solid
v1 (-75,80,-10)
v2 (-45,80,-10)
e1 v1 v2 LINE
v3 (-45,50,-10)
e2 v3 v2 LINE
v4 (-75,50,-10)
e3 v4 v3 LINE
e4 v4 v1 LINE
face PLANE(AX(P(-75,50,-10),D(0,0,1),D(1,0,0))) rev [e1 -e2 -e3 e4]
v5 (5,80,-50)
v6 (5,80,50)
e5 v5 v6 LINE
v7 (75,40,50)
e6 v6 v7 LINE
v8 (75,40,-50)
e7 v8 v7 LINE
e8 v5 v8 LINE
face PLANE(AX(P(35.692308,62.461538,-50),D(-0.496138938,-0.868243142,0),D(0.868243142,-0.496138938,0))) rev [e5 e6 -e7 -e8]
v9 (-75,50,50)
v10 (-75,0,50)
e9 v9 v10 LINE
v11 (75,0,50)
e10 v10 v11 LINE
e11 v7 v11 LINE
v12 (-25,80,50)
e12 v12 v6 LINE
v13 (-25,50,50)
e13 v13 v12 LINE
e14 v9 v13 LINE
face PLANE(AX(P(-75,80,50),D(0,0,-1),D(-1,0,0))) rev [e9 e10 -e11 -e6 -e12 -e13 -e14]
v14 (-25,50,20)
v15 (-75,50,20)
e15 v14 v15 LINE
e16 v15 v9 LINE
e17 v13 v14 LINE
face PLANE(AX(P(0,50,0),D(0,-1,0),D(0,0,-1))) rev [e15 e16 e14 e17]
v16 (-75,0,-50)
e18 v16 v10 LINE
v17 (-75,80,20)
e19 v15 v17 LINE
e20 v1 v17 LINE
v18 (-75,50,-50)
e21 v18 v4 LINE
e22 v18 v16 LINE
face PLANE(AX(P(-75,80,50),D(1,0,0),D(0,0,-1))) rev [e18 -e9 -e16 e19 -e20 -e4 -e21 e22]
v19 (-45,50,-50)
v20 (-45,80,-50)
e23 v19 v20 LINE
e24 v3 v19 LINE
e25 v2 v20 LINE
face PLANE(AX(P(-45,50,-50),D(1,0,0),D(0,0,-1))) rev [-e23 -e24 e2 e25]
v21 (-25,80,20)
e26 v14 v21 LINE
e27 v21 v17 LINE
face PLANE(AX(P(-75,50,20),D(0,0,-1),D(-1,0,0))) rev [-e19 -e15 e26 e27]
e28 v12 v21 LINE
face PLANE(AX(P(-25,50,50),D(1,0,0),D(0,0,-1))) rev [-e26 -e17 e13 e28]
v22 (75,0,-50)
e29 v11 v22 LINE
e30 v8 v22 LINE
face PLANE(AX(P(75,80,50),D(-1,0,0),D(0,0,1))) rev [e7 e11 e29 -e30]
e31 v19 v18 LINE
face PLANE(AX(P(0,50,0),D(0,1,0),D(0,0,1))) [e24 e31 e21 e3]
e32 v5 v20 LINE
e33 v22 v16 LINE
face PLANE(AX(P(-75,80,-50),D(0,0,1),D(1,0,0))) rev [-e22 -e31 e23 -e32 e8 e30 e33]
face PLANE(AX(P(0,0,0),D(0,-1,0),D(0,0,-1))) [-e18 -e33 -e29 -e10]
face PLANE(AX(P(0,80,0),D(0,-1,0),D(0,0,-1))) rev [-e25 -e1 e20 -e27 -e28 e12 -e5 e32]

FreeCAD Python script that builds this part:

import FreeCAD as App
import Part
import Sketcher
Q = App.Units.Quantity

doc = App.newDocument("Part")
body = doc.addObject("PartDesign::Body", "Body")

sketch1 = doc.addObject("Sketcher::SketchObject", "Sketch")
body.addObject(sketch1)
sketch1.AttachmentSupport = (doc.XZ_Plane, [""])
sketch1.MapMode = "FlatFace"
sketch1.addGeometry([
    Part.LineSegment(App.Vector(-75, -50, 0), App.Vector(-75, 50, 0)),
    Part.LineSegment(App.Vector(-75, 50, 0), App.Vector(75, 50, 0)),
    Part.LineSegment(App.Vector(75, 50, 0), App.Vector(75, -50, 0)),
    Part.LineSegment(App.Vector(75, -50, 0), App.Vector(-75, -50, 0)),
], False)
sketch1.addConstraint([
    Sketcher.Constraint("Coincident", 0, 2, 1, 1),
    Sketcher.Constraint("Coincident", 1, 2, 2, 1),
    Sketcher.Constraint("Coincident", 2, 2, 3, 1),
    Sketcher.Constraint("Coincident", 3, 2, 0, 1),
    Sketcher.Constraint("Vertical", 0),
    Sketcher.Constraint("Horizontal", 1),
    Sketcher.Constraint("Vertical", 2),
    Sketcher.Constraint("Horizontal", 3),
    Sketcher.Constraint("Symmetric", 0, 2, 2, 2, -1, 1),
    Sketcher.Constraint("DistanceX", 1, 1, 1, 2, Q("150 mm")),
    Sketcher.Constraint("DistanceY", 0, 1, 0, 2, Q("100 mm")),
])
pad1 = doc.addObject("PartDesign::Pad", "Pad")
body.addObject(pad1)
pad1.Profile = sketch1
pad1.Length = 80
pad1.Reversed = True

sketch2 = doc.addObject("Sketcher::SketchObject", "Sketch001")
body.addObject(sketch2)
sketch2.AttachmentSupport = (doc.XY_Plane, [""])
sketch2.MapMode = "FlatFace"
sketch2.AttachmentOffset = App.Placement(App.Vector(0, 0, 50), App.Rotation())
sketch2.addGeometry([
    Part.LineSegment(App.Vector(75, 80, 0), App.Vector(5, 80, 0)),
    Part.LineSegment(App.Vector(5, 80, 0), App.Vector(75, 40, 0)),
    Part.LineSegment(App.Vector(75, 40, 0), App.Vector(75, 80, 0)),
], False)
sketch2.addConstraint([
    Sketcher.Constraint("Coincident", 0, 2, 1, 1),
    Sketcher.Constraint("Coincident", 1, 2, 2, 1),
    Sketcher.Constraint("Coincident", 2, 2, 0, 1),
    Sketcher.Constraint("Horizontal", 0),
    Sketcher.Constraint("Vertical", 2),
    Sketcher.Constraint("DistanceX", 0, 2, 0, 1, Q("70 mm")),
    Sketcher.Constraint("DistanceY", 2, 1, 2, 2, Q("40 mm")),
    Sketcher.Constraint("DistanceX", -1, 1, 0, 2, Q("5 mm")),
    Sketcher.Constraint("DistanceY", -1, 1, 0, 2, Q("80 mm")),
])
pocket1 = doc.addObject("PartDesign::Pocket", "Pocket")
body.addObject(pocket1)
pocket1.Profile = sketch2
pocket1.Type = "ThroughAll"

sketch3 = doc.addObject("Sketcher::SketchObject", "Sketch002")
body.addObject(sketch3)
sketch3.AttachmentSupport = (doc.XZ_Plane, [""])
sketch3.MapMode = "FlatFace"
sketch3.AttachmentOffset = App.Placement(App.Vector(0, 0, -80), App.Rotation())
sketch3.addGeometry([
    Part.LineSegment(App.Vector(-75, 20, 0), App.Vector(-75, 50, 0)),
    Part.LineSegment(App.Vector(-75, 50, 0), App.Vector(-25, 50, 0)),
    Part.LineSegment(App.Vector(-25, 50, 0), App.Vector(-25, 20, 0)),
    Part.LineSegment(App.Vector(-25, 20, 0), App.Vector(-75, 20, 0)),
    Part.LineSegment(App.Vector(-75, -50, 0), App.Vector(-75, -10, 0)),
    Part.LineSegment(App.Vector(-75, -10, 0), App.Vector(-45, -10, 0)),
    Part.LineSegment(App.Vector(-45, -10, 0), App.Vector(-45, -50, 0)),
    Part.LineSegment(App.Vector(-45, -50, 0), App.Vector(-75, -50, 0)),
], False)
sketch3.addConstraint([
    Sketcher.Constraint("Coincident", 0, 2, 1, 1),
    Sketcher.Constraint("Coincident", 1, 2, 2, 1),
    Sketcher.Constraint("Coincident", 2, 2, 3, 1),
    Sketcher.Constraint("Coincident", 3, 2, 0, 1),
    Sketcher.Constraint("Coincident", 4, 2, 5, 1),
    Sketcher.Constraint("Coincident", 5, 2, 6, 1),
    Sketcher.Constraint("Coincident", 6, 2, 7, 1),
    Sketcher.Constraint("Coincident", 7, 2, 4, 1),
    Sketcher.Constraint("Vertical", 0),
    Sketcher.Constraint("Horizontal", 1),
    Sketcher.Constraint("Vertical", 2),
    Sketcher.Constraint("Horizontal", 3),
    Sketcher.Constraint("Vertical", 4),
    Sketcher.Constraint("Horizontal", 5),
    Sketcher.Constraint("Vertical", 6),
    Sketcher.Constraint("Horizontal", 7),
    Sketcher.Constraint("Symmetric", 0, 2, 7, 2, -1),
    Sketcher.Constraint("Equal", 7, 0),
    Sketcher.Constraint("DistanceX", 1, 1, 1, 2, Q("50 mm")),
    Sketcher.Constraint("DistanceX", 5, 1, 5, 2, Q("30 mm")),
    Sketcher.Constraint("DistanceY", 4, 1, 4, 2, Q("40 mm")),
    Sketcher.Constraint("DistanceX", 0, 2, -1, 1, Q("75 mm")),
    Sketcher.Constraint("DistanceY", -1, 1, 0, 2, Q("50 mm")),
])
pocket2 = doc.addObject("PartDesign::Pocket", "Pocket001")
body.addObject(pocket2)
pocket2.Profile = sketch3
pocket2.Length = 30
pocket2.Reversed = True

doc.recompute()
